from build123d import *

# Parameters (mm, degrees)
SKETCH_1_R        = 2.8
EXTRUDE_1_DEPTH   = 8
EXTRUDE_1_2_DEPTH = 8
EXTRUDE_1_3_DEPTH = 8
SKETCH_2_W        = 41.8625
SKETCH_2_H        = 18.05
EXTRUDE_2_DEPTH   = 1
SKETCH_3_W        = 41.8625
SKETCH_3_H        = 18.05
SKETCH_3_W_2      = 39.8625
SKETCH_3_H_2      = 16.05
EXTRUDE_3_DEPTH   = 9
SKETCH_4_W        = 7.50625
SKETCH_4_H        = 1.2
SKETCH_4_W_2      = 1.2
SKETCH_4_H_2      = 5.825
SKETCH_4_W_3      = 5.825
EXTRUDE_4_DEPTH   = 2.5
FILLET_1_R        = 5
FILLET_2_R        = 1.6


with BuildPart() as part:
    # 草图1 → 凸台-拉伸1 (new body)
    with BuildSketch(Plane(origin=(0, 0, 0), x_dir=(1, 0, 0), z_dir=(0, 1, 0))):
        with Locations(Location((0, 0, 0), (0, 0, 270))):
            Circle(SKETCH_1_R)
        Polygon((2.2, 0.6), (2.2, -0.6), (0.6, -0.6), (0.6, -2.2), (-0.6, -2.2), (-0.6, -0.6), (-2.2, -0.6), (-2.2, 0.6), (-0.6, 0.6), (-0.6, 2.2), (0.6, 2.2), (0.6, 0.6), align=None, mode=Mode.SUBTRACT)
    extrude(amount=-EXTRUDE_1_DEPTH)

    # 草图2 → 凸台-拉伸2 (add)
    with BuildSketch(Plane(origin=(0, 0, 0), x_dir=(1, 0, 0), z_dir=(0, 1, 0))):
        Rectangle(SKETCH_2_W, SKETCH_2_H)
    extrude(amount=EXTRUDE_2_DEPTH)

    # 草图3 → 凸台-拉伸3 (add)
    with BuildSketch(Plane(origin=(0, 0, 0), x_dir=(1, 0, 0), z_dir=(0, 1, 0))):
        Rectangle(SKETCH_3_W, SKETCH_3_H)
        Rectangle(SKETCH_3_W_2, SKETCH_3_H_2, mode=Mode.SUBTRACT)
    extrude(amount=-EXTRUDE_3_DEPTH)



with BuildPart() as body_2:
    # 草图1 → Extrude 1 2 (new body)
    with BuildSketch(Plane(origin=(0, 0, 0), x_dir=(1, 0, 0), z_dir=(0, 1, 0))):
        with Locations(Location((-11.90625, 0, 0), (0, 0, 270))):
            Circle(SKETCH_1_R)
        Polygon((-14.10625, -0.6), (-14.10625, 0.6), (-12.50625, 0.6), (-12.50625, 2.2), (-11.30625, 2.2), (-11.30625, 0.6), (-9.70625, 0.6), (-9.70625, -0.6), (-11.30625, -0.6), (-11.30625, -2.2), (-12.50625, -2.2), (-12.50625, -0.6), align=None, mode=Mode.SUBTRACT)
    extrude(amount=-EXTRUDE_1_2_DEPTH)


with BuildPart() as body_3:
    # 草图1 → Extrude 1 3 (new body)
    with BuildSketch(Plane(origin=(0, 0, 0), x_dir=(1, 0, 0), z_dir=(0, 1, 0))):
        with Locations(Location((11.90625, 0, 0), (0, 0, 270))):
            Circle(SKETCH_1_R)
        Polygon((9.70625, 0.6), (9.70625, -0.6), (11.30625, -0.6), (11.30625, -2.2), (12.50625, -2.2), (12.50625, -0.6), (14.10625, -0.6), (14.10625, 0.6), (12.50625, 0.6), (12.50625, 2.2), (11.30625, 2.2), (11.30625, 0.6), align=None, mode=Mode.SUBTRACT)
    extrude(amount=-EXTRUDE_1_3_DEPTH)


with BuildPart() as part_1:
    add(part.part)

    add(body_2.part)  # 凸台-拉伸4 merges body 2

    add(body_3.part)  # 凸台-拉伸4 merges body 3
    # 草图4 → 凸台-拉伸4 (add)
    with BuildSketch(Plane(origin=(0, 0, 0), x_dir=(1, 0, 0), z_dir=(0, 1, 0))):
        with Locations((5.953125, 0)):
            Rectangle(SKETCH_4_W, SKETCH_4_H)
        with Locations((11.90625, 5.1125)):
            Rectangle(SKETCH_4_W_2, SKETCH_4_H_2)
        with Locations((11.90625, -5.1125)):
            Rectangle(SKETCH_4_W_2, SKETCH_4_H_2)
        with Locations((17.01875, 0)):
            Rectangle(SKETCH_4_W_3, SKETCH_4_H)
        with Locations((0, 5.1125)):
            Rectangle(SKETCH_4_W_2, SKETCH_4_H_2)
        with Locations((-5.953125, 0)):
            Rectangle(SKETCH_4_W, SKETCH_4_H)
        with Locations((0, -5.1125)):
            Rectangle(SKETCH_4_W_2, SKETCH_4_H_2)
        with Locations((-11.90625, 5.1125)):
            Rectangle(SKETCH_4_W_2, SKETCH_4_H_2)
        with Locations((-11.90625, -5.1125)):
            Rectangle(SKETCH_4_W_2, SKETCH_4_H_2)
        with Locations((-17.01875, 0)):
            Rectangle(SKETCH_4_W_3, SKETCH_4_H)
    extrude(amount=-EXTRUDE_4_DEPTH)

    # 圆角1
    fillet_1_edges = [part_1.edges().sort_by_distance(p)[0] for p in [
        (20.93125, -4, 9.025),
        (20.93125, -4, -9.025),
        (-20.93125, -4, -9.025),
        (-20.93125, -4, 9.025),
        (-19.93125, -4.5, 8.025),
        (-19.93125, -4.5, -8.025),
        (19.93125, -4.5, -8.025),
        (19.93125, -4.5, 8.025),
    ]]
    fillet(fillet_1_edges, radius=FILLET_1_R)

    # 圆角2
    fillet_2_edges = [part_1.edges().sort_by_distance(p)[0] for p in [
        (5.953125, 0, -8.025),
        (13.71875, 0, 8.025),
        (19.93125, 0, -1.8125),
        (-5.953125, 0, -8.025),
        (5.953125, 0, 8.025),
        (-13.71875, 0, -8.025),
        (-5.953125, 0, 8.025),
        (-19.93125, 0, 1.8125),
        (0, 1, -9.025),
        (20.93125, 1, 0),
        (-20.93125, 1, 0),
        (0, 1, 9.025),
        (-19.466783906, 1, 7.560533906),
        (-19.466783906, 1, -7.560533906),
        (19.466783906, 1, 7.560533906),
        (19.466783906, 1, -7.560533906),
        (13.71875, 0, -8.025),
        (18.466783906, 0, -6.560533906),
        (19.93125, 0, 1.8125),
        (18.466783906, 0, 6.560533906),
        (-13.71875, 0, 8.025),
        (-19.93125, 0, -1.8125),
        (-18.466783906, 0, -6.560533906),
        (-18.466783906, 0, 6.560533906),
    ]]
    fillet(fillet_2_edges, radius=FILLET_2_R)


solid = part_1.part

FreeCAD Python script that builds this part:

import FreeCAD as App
import Part
import Sketcher
from FreeCAD import Vector


def edges_at(feature, points):
    """Names of the edges that pass closest to the given points."""
    edges = feature.Shape.Edges
    near = lambda p: min(range(len(edges)), key=lambda i: edges[i].distToShape(Part.Vertex(*p))[0])
    return sorted({f"Edge{near(p) + 1}" for p in points})


def add_polygon(sketch, points):
    """Adds a closed chain of lines whose ends are joined by coincident constraints."""
    first, n = sketch.GeometryCount, len(points)
    for a, b in zip(points, points[1:] + points[:1]):
        sketch.addGeometry(Part.LineSegment(App.Vector(*a, 0), App.Vector(*b, 0)), False)
    for i in range(n):
        sketch.addConstraint(Sketcher.Constraint("Coincident", first + i, 2, first + (i + 1) % n, 1))

doc = App.newDocument("Part")
params = doc.addObject("Spreadsheet::Sheet", "Params")
for row, (alias, value) in enumerate([
    ("sketch1_diameter", "5.6 mm"),
    ("sketch1_width", "1.6 mm"),
    ("sketch1_width2", "1.2 mm"),
    ("pad1_length", "8 mm"),
    ("sketch2_height", "18.05 mm"),
    ("pad2_length", "1 mm"),
    ("sketch3_height", "18.05 mm"),
    ("pad3_length", "9 mm"),
    ("sketch4_diameter", "5.6 mm"),
    ("sketch4_width", "1.6 mm"),
    ("sketch4_width2", "1.2 mm"),
    ("pad4_length", "8 mm"),
    ("sketch5_diameter", "5.6 mm"),
    ("sketch5_width", "1.6 mm"),
    ("sketch5_width2", "1.2 mm"),
    ("pad5_length", "8 mm"),
    ("sketch6_width", "1.2 mm"),
    ("pad6_length", "2.5 mm"),
    ("fillet_radius", "5 mm"),
    ("fillet2_radius", "1.6 mm"),
], start=1):
    params.set(f"A{row}", alias)
    params.set(f"B{row}", "=" + value)
    params.setAlias(f"B{row}", alias)

body = doc.addObject("PartDesign::Body", "Body")

# Sketch on XZ plane
sketch1 = doc.addObject("Sketcher::SketchObject", "Sketch")
body.addObject(sketch1)
sketch1.AttachmentSupport = (doc.XZ_Plane, [""])
sketch1.MapMode = "FlatFace"
sketch1.addGeometry(Part.Circle(Vector(0, 0, 0), Vector(0, 0, 1), 2.8), False)  # 0
add_polygon(sketch1, [(0.6, -0.6), (2.2, -0.6), (2.2, 0.6), (0.6, 0.6), (0.6, 2.2), (-0.6, 2.2), (-0.6, 0.6), (-2.2, 0.6), (-2.2, -0.6), (-0.6, -0.6), (-0.6, -2.2), (0.6, -2.2)])  # lines 1-12
sketch1.addConstraint([
    Sketcher.Constraint("Horizontal", 1),
    Sketcher.Constraint("Vertical", 2),
    Sketcher.Constraint("Horizontal", 3),
    Sketcher.Constraint("Vertical", 4),
    Sketcher.Constraint("Horizontal", 5),
    Sketcher.Constraint("Vertical", 6),
    Sketcher.Constraint("Horizontal", 7),
    Sketcher.Constraint("Vertical", 8),
    Sketcher.Constraint("Horizontal", 9),
    Sketcher.Constraint("Vertical", 10),
    Sketcher.Constraint("Horizontal", 11),
    Sketcher.Constraint("Vertical", 12),
    Sketcher.Constraint("Coincident", 0, 3, -1, 1),
    Sketcher.Constraint("Symmetric", 1, 2, 7, 2, -1, 1),
    Sketcher.Constraint("Symmetric", 3, 2, 9, 2, -1, 1),
    Sketcher.Constraint("Symmetric", 5, 2, 11, 2, -1, 1),
    Sketcher.Constraint("Symmetric", 3, 2, 6, 2, -2),
    Sketcher.Constraint("Equal", 11, 2),
    Sketcher.Constraint("Equal", 9, 4),
    Sketcher.Constraint("Diameter", 0, 5.6),
    Sketcher.Constraint("DistanceX", 1, 1, 1, 2, 1.6),
    Sketcher.Constraint("DistanceX", 5, 2, 5, 1, 1.2),
])
sketch1.setExpression("Constraints[31]", "Params.sketch1_diameter")
sketch1.setExpression("Constraints[32]", "Params.sketch1_width")
sketch1.setExpression("Constraints[33]", "Params.sketch1_width2")
pad1 = doc.addObject("PartDesign::Pad", "Pad")
body.addObject(pad1)
pad1.Profile = sketch1
pad1.setExpression("Length", "Params.pad1_length")

# Sketch on XZ plane
sketch2 = doc.addObject("Sketcher::SketchObject", "Sketch001")
body.addObject(sketch2)
sketch2.AttachmentSupport = (doc.XZ_Plane, [""])
sketch2.MapMode = "FlatFace"
add_polygon(sketch2, [(-20.93125, -9.025), (-20.93125, 9.025), (20.93125, 9.025), (20.93125, -9.025)])  # lines 0-3
sketch2.addConstraint([
    Sketcher.Constraint("Vertical", 0),
    Sketcher.Constraint("Horizontal", 1),
    Sketcher.Constraint("Vertical", 2),
    Sketcher.Constraint("Horizontal", 3),
    Sketcher.Constraint("Symmetric", 0, 2, 2, 2, -1, 1),
    Sketcher.Constraint("DistanceY", 0, 1, 0, 2, 18.05),
    Sketcher.Constraint("DistanceX", 1, 1, 1, 2, 41.8625),
])
sketch2.setExpression("Constraints[9]", "Params.sketch2_height")
pad2 = doc.addObject("PartDesign::Pad", "Pad001")
body.addObject(pad2)
pad2.Profile = sketch2
pad2.setExpression("Length", "Params.pad2_length")
pad2.Reversed = True

# Sketch on XZ plane
sketch3 = doc.addObject("Sketcher::SketchObject", "Sketch002")
body.addObject(sketch3)
sketch3.AttachmentSupport = (doc.XZ_Plane, [""])
sketch3.MapMode = "FlatFace"
add_polygon(sketch3, [(-20.93125, -9.025), (-20.93125, 9.025), (20.93125, 9.025), (20.93125, -9.025)])  # lines 0-3
add_polygon(sketch3, [(19.93125, 8.025), (-19.93125, 8.025), (-19.93125, -8.025), (19.93125, -8.025)])  # lines 4-7
sketch3.addConstraint([
    Sketcher.Constraint("Vertical", 0),
    Sketcher.Constraint("Horizontal", 1),
    Sketcher.Constraint("Vertical", 2),
    Sketcher.Constraint("Horizontal", 3),
    Sketcher.Constraint("Horizontal", 4),
    Sketcher.Constraint("Vertical", 5),
    Sketcher.Constraint("Horizontal", 6),
    Sketcher.Constraint("Vertical", 7),
    Sketcher.Constraint("Symmetric", 0, 2, 2, 2, -1, 1),
    Sketcher.Constraint("Symmetric", 4, 2, 6, 2, -1, 1),
    Sketcher.Constraint("DistanceX", 0, 2, 4, 2, 1.0),
    Sketcher.Constraint("DistanceY", 4, 2, 0, 2, 1.0),
    Sketcher.Constraint("DistanceY", 0, 1, 0, 2, 18.05),
    Sketcher.Constraint("DistanceX", 1, 1, 1, 2, 41.8625),
])
sketch3.setExpression("Constraints[20]", "Params.sketch3_height")
pad3 = doc.addObject("PartDesign::Pad", "Pad002")
body.addObject(pad3)
pad3.Profile = sketch3
pad3.setExpression("Length", "Params.pad3_length")
body2 = doc.addObject("PartDesign::Body", "Body001")

# Sketch on XZ plane
sketch4 = doc.addObject("Sketcher::SketchObject", "Sketch003")
body2.addObject(sketch4)
sketch4.AttachmentSupport = (doc.getObject("XZ_Plane001"), [""])
sketch4.MapMode = "FlatFace"
sketch4.addGeometry(Part.Circle(Vector(-11.90625, 0, 0), Vector(0, 0, 1), 2.8), False)  # 0
add_polygon(sketch4, [(-12.50625, 0.6), (-14.10625, 0.6), (-14.10625, -0.6), (-12.50625, -0.6), (-12.50625, -2.2), (-11.30625, -2.2), (-11.30625, -0.6), (-9.70625, -0.6), (-9.70625, 0.6), (-11.30625, 0.6), (-11.30625, 2.2), (-12.50625, 2.2)])  # lines 1-12
sketch4.addConstraint([
    Sketcher.Constraint("Horizontal", 1),
    Sketcher.Constraint("Vertical", 2),
    Sketcher.Constraint("Horizontal", 3),
    Sketcher.Constraint("Vertical", 4),
    Sketcher.Constraint("Horizontal", 5),
    Sketcher.Constraint("Vertical", 6),
    Sketcher.Constraint("Horizontal", 7),
    Sketcher.Constraint("Vertical", 8),
    Sketcher.Constraint("Horizontal", 9),
    Sketcher.Constraint("Vertical", 10),
    Sketcher.Constraint("Horizontal", 11),
    Sketcher.Constraint("Vertical", 12),
    Sketcher.Constraint("Symmetric", 6, 2, 9, 2, -1),
    Sketcher.Constraint("Symmetric", 4, 2, 11, 2, -1),
    Sketcher.Constraint("PointOnObject", 0, 3, -1),
    Sketcher.Constraint("Horizontal", 3, 2, 6, 2),
    Sketcher.Constraint("Horizontal", 1, 2, 8, 2),
    Sketcher.Constraint("Equal", 3, 7),
    Sketcher.Constraint("Equal", 11, 2),
    Sketcher.Constraint("Equal", 9, 4),
    Sketcher.Constraint("Diameter", 0, 5.6),
    Sketcher.Constraint("DistanceX", 1, 2, 1, 1, 1.6),
    Sketcher.Constraint("DistanceX", 5, 1, 5, 2, 1.2),
    Sketcher.Constraint("DistanceX", 1, 2, 0, 3, 2.2),
    Sketcher.Constraint("DistanceX", 0, 3, -1, 1, 11.90625),
])
sketch4.setExpression("Constraints[32]", "Params.sketch4_diameter")
sketch4.setExpression("Constraints[33]", "Params.sketch4_width")
sketch4.setExpression("Constraints[34]", "Params.sketch4_width2")
pad4 = doc.addObject("PartDesign::Pad", "Pad003")
body2.addObject(pad4)
pad4.Profile = sketch4
pad4.setExpression("Length", "Params.pad4_length")
body3 = doc.addObject("PartDesign::Body", "Body002")

# Sketch on XZ plane
sketch5 = doc.addObject("Sketcher::SketchObject", "Sketch004")
body3.addObject(sketch5)
sketch5.AttachmentSupport = (doc.getObject("XZ_Plane002"), [""])
sketch5.MapMode = "FlatFace"
sketch5.addGeometry(Part.Circle(Vector(11.90625, 0, 0), Vector(0, 0, 1), 2.8), False)  # 0
add_polygon(sketch5, [(9.70625, 0.6), (9.70625, -0.6), (11.30625, -0.6), (11.30625, -2.2), (12.50625, -2.2), (12.50625, -0.6), (14.10625, -0.6), (14.10625, 0.6), (12.50625, 0.6), (12.50625, 2.2), (11.30625, 2.2), (11.30625, 0.6)])  # lines 1-12
sketch5.addConstraint([
    Sketcher.Constraint("Vertical", 1),
    Sketcher.Constraint("Horizontal", 2),
    Sketcher.Constraint("Vertical", 3),
    Sketcher.Constraint("Horizontal", 4),
    Sketcher.Constraint("Vertical", 5),
    Sketcher.Constraint("Horizontal", 6),
    Sketcher.Constraint("Vertical", 7),
    Sketcher.Constraint("Horizontal", 8),
    Sketcher.Constraint("Vertical", 9),
    Sketcher.Constraint("Horizontal", 10),
    Sketcher.Constraint("Vertical", 11),
    Sketcher.Constraint("Horizontal", 12),
    Sketcher.Constraint("Symmetric", 5, 2, 8, 2, -1),
    Sketcher.Constraint("Symmetric", 3, 2, 10, 2, -1),
    Sketcher.Constraint("PointOnObject", 0, 3, -1),
    Sketcher.Constraint("Horizontal", 2, 2, 5, 2),
    Sketcher.Constraint("Horizontal", 8, 2, 11, 2),
    Sketcher.Constraint("Equal", 2, 6),
    Sketcher.Constraint("Equal", 10, 1),
    Sketcher.Constraint("Equal", 12, 3),
    Sketcher.Constraint("Diameter", 0, 5.6),
    Sketcher.Constraint("DistanceX", 2, 1, 2, 2, 1.6),
    Sketcher.Constraint("DistanceX", 4, 1, 4, 2, 1.2),
    Sketcher.Constraint("DistanceX", 1, 2, 0, 3, 2.2),
    Sketcher.Constraint("DistanceX", -1, 1, 0, 3, 11.90625),
])
sketch5.setExpression("Constraints[32]", "Params.sketch5_diameter")
sketch5.setExpression("Constraints[33]", "Params.sketch5_width")
sketch5.setExpression("Constraints[34]", "Params.sketch5_width2")
pad5 = doc.addObject("PartDesign::Pad", "Pad004")
body3.addObject(pad5)
pad5.Profile = sketch5
pad5.setExpression("Length", "Params.pad5_length")
doc.recompute()

boolean = doc.addObject("PartDesign::Boolean", "Boolean")
body.addObject(boolean)
boolean.Type = "Fuse"
boolean.addObjects([body2])
doc.recompute()

boolean2 = doc.addObject("PartDesign::Boolean", "Boolean001")
body.addObject(boolean2)
boolean2.Type = "Fuse"
boolean2.addObjects([body3])

# Sketch on XZ plane
sketch6 = doc.addObject("Sketcher::SketchObject", "Sketch005")
body.addObject(sketch6)
sketch6.AttachmentSupport = (doc.XZ_Plane, [""])
sketch6.MapMode = "FlatFace"
add_polygon(sketch6, [(2.2, -0.6), (2.2, 0.6), (9.70625, 0.6), (9.70625, -0.6)])  # lines 0-3
add_polygon(sketch6, [(11.30625, -8.025), (11.30625, -2.2), (12.50625, -2.2), (12.50625, -8.025)])  # lines 4-7
add_polygon(sketch6, [(11.30625, 2.2), (11.30625, 8.025), (12.50625, 8.025), (12.50625, 2.2)])  # lines 8-11
add_polygon(sketch6, [(14.10625, -0.6), (14.10625, 0.6), (19.93125, 0.6), (19.93125, -0.6)])  # lines 12-15
add_polygon(sketch6, [(-0.6, -8.025), (-0.6, -2.2), (0.6, -2.2), (0.6, -8.025)])  # lines 16-19
add_polygon(sketch6, [(-9.70625, -0.6), (-9.70625, 0.6), (-2.2, 0.6), (-2.2, -0.6)])  # lines 20-23
add_polygon(sketch6, [(-0.6, 2.2), (-0.6, 8.025), (0.6, 8.025), (0.6, 2.2)])  # lines 24-27
add_polygon(sketch6, [(-12.50625, -8.025), (-12.50625, -2.2), (-11.30625, -2.2), (-11.30625, -8.025)])  # lines 28-31
add_polygon(sketch6, [(-12.50625, 2.2), (-12.50625, 8.025), (-11.30625, 8.025), (-11.30625, 2.2)])  # lines 32-35
add_polygon(sketch6, [(-19.93125, -0.6), (-19.93125, 0.6), (-14.10625, 0.6), (-14.10625, -0.6)])  # lines 36-39
sketch6.addConstraint([
    Sketcher.Constraint("Vertical", 0),
    Sketcher.Constraint("Horizontal", 1),
    Sketcher.Constraint("Vertical", 2),
    Sketcher.Constraint("Horizontal", 3),
    Sketcher.Constraint("Vertical", 4),
    Sketcher.Constraint("Horizontal", 5),
    Sketcher.Constraint("Vertical", 6),
    Sketcher.Constraint("Horizontal", 7),
    Sketcher.Constraint("Vertical", 8),
    Sketcher.Constraint("Horizontal", 9),
    Sketcher.Constraint("Vertical", 10),
    Sketcher.Constraint("Horizontal", 11),
    Sketcher.Constraint("Vertical", 12),
    Sketcher.Constraint("Horizontal", 13),
    Sketcher.Constraint("Vertical", 14),
    Sketcher.Constraint("Horizontal", 15),
    Sketcher.Constraint("Vertical", 16),
    Sketcher.Constraint("Horizontal", 17),
    Sketcher.Constraint("Vertical", 18),
    Sketcher.Constraint("Horizontal", 19),
    Sketcher.Constraint("Vertical", 20),
    Sketcher.Constraint("Horizontal", 21),
    Sketcher.Constraint("Vertical", 22),
    Sketcher.Constraint("Horizontal", 23),
    Sketcher.Constraint("Vertical", 24),
    Sketcher.Constraint("Horizontal", 25),
    Sketcher.Constraint("Vertical", 26),
    Sketcher.Constraint("Horizontal", 27),
    Sketcher.Constraint("Vertical", 28),
    Sketcher.Constraint("Horizontal", 29),
    Sketcher.Constraint("Vertical", 30),
    Sketcher.Constraint("Horizontal", 31),
    Sketcher.Constraint("Vertical", 32),
    Sketcher.Constraint("Horizontal", 33),
    Sketcher.Constraint("Vertical", 34),
    Sketcher.Constraint("Horizontal", 35),
    Sketcher.Constraint("Vertical", 36),
    Sketcher.Constraint("Horizontal", 37),
    Sketcher.Constraint("Vertical", 38),
    Sketcher.Constraint("Horizontal", 39),
    Sketcher.Constraint("Symmetric", 2, 2, 20, 2, -1, 1),
    Sketcher.Constraint("Symmetric", 0, 2, 22, 2, -1, 1),
    Sketcher.Constraint("Symmetric", 18, 2, 24, 2, -1, 1),
    Sketcher.Constraint("Symmetric", 16, 2, 26, 2, -1, 1),
    Sketcher.Constraint("Symmetric", 10, 2, 28, 2, -1, 1),
    Sketcher.Constraint("Symmetric", 8, 2, 30, 2, -1, 1),
    Sketcher.Constraint("Symmetric", 6, 2, 32, 2, -1, 1),
    Sketcher.Constraint("Symmetric", 4, 2, 34, 2, -1, 1),
    Sketcher.Constraint("Symmetric", 14, 2, 36, 2, -1, 1),
    Sketcher.Constraint("Symmetric", 12, 2, 38, 2, -1, 1),
    Sketcher.Constraint("Symmetric", 5, 2, 28, 2, -2),
    Sketcher.Constraint("Symmetric", 7, 2, 30, 2, -2),
    Sketcher.Constraint("Horizontal", 1, 2, 12, 2),
    Sketcher.Constraint("Horizontal", 3, 2, 14, 2),
    Sketcher.Constraint("Horizontal", 5, 2, 16, 2),
    Sketcher.Constraint("Horizontal", 7, 2, 18, 2),
    Sketcher.Constraint("Horizontal", 13, 2, 20, 2),
    Sketcher.Constraint("Vertical", 19, 2, 24, 2),
    Sketcher.Constraint("Equal", 11, 17),
    Sketcher.Constraint("Equal", 35, 0),
    Sketcher.Constraint("Equal", 39, 4),
    Sketcher.Constraint("DistanceX", 5, 1, 5, 2, 1.2),
    Sketcher.Constraint("DistanceX", -1, 1, 0, 2, 2.2),
    Sketcher.Constraint("DistanceY", 4, 2, -1, 1, 2.2),
    Sketcher.Constraint("DistanceX", 2, 2, 4, 2, 1.6),
    Sketcher.Constraint("DistanceX", 10, 2, 12, 2, 1.6),
    Sketcher.Constraint("DistanceX", 13, 1, 13, 2, 5.825),
    Sketcher.Constraint("DistanceX", 1, 1, 1, 2, 7.50625),
])
sketch6.setExpression("Constraints[101]", "Params.sketch6_width")
pad6 = doc.addObject("PartDesign::Pad", "Pad005")
body.addObject(pad6)
pad6.Profile = sketch6
pad6.setExpression("Length", "Params.pad6_length")
doc.recompute()

fillet = doc.addObject("PartDesign::Fillet", "Fillet")
body.addObject(fillet)
fillet.Base = (pad6, edges_at(pad6, [
    (20.931, -4, 9.025),
    (20.931, -4, -9.025),
    (-20.931, -4, -9.025),
    (-20.931, -4, 9.025),
    (-19.931, -4.5, 8.025),
    (-19.931, -4.5, -8.025),
    (19.931, -4.5, -8.025),
    (19.931, -4.5, 8.025),
]))
fillet.setExpression("Radius", "Params.fillet_radius")
doc.recompute()

fillet2 = doc.addObject("PartDesign::Fillet", "Fillet001")
body.addObject(fillet2)
fillet2.Base = (fillet, edges_at(fillet, [
    (5.953, 0, -8.025),
    (13.719, 0, 8.025),
    (19.931, 0, -1.812),
    (-5.953, 0, -8.025),
    (5.953, 0, 8.025),
    (-13.719, 0, -8.025),
    (-5.953, 0, 8.025),
    (-19.931, 0, 1.812),
    (0, 1, -9.025),
    (20.931, 1, 0),
    (-20.931, 1, 0),
    (0, 1, 9.025),
    (-19.467, 1, 7.561),
    (-19.467, 1, -7.561),
    (19.467, 1, 7.561),
    (19.467, 1, -7.561),
    (13.719, 0, -8.025),
    (18.467, 0, -6.561),
    (19.931, 0, 1.812),
    (18.467, 0, 6.561),
    (-13.719, 0, 8.025),
    (-19.931, 0, -1.812),
    (-18.467, 0, -6.561),
    (-18.467, 0, 6.561),
]))
fillet2.setExpression("Radius", "Params.fillet2_radius")

doc.recompute()
